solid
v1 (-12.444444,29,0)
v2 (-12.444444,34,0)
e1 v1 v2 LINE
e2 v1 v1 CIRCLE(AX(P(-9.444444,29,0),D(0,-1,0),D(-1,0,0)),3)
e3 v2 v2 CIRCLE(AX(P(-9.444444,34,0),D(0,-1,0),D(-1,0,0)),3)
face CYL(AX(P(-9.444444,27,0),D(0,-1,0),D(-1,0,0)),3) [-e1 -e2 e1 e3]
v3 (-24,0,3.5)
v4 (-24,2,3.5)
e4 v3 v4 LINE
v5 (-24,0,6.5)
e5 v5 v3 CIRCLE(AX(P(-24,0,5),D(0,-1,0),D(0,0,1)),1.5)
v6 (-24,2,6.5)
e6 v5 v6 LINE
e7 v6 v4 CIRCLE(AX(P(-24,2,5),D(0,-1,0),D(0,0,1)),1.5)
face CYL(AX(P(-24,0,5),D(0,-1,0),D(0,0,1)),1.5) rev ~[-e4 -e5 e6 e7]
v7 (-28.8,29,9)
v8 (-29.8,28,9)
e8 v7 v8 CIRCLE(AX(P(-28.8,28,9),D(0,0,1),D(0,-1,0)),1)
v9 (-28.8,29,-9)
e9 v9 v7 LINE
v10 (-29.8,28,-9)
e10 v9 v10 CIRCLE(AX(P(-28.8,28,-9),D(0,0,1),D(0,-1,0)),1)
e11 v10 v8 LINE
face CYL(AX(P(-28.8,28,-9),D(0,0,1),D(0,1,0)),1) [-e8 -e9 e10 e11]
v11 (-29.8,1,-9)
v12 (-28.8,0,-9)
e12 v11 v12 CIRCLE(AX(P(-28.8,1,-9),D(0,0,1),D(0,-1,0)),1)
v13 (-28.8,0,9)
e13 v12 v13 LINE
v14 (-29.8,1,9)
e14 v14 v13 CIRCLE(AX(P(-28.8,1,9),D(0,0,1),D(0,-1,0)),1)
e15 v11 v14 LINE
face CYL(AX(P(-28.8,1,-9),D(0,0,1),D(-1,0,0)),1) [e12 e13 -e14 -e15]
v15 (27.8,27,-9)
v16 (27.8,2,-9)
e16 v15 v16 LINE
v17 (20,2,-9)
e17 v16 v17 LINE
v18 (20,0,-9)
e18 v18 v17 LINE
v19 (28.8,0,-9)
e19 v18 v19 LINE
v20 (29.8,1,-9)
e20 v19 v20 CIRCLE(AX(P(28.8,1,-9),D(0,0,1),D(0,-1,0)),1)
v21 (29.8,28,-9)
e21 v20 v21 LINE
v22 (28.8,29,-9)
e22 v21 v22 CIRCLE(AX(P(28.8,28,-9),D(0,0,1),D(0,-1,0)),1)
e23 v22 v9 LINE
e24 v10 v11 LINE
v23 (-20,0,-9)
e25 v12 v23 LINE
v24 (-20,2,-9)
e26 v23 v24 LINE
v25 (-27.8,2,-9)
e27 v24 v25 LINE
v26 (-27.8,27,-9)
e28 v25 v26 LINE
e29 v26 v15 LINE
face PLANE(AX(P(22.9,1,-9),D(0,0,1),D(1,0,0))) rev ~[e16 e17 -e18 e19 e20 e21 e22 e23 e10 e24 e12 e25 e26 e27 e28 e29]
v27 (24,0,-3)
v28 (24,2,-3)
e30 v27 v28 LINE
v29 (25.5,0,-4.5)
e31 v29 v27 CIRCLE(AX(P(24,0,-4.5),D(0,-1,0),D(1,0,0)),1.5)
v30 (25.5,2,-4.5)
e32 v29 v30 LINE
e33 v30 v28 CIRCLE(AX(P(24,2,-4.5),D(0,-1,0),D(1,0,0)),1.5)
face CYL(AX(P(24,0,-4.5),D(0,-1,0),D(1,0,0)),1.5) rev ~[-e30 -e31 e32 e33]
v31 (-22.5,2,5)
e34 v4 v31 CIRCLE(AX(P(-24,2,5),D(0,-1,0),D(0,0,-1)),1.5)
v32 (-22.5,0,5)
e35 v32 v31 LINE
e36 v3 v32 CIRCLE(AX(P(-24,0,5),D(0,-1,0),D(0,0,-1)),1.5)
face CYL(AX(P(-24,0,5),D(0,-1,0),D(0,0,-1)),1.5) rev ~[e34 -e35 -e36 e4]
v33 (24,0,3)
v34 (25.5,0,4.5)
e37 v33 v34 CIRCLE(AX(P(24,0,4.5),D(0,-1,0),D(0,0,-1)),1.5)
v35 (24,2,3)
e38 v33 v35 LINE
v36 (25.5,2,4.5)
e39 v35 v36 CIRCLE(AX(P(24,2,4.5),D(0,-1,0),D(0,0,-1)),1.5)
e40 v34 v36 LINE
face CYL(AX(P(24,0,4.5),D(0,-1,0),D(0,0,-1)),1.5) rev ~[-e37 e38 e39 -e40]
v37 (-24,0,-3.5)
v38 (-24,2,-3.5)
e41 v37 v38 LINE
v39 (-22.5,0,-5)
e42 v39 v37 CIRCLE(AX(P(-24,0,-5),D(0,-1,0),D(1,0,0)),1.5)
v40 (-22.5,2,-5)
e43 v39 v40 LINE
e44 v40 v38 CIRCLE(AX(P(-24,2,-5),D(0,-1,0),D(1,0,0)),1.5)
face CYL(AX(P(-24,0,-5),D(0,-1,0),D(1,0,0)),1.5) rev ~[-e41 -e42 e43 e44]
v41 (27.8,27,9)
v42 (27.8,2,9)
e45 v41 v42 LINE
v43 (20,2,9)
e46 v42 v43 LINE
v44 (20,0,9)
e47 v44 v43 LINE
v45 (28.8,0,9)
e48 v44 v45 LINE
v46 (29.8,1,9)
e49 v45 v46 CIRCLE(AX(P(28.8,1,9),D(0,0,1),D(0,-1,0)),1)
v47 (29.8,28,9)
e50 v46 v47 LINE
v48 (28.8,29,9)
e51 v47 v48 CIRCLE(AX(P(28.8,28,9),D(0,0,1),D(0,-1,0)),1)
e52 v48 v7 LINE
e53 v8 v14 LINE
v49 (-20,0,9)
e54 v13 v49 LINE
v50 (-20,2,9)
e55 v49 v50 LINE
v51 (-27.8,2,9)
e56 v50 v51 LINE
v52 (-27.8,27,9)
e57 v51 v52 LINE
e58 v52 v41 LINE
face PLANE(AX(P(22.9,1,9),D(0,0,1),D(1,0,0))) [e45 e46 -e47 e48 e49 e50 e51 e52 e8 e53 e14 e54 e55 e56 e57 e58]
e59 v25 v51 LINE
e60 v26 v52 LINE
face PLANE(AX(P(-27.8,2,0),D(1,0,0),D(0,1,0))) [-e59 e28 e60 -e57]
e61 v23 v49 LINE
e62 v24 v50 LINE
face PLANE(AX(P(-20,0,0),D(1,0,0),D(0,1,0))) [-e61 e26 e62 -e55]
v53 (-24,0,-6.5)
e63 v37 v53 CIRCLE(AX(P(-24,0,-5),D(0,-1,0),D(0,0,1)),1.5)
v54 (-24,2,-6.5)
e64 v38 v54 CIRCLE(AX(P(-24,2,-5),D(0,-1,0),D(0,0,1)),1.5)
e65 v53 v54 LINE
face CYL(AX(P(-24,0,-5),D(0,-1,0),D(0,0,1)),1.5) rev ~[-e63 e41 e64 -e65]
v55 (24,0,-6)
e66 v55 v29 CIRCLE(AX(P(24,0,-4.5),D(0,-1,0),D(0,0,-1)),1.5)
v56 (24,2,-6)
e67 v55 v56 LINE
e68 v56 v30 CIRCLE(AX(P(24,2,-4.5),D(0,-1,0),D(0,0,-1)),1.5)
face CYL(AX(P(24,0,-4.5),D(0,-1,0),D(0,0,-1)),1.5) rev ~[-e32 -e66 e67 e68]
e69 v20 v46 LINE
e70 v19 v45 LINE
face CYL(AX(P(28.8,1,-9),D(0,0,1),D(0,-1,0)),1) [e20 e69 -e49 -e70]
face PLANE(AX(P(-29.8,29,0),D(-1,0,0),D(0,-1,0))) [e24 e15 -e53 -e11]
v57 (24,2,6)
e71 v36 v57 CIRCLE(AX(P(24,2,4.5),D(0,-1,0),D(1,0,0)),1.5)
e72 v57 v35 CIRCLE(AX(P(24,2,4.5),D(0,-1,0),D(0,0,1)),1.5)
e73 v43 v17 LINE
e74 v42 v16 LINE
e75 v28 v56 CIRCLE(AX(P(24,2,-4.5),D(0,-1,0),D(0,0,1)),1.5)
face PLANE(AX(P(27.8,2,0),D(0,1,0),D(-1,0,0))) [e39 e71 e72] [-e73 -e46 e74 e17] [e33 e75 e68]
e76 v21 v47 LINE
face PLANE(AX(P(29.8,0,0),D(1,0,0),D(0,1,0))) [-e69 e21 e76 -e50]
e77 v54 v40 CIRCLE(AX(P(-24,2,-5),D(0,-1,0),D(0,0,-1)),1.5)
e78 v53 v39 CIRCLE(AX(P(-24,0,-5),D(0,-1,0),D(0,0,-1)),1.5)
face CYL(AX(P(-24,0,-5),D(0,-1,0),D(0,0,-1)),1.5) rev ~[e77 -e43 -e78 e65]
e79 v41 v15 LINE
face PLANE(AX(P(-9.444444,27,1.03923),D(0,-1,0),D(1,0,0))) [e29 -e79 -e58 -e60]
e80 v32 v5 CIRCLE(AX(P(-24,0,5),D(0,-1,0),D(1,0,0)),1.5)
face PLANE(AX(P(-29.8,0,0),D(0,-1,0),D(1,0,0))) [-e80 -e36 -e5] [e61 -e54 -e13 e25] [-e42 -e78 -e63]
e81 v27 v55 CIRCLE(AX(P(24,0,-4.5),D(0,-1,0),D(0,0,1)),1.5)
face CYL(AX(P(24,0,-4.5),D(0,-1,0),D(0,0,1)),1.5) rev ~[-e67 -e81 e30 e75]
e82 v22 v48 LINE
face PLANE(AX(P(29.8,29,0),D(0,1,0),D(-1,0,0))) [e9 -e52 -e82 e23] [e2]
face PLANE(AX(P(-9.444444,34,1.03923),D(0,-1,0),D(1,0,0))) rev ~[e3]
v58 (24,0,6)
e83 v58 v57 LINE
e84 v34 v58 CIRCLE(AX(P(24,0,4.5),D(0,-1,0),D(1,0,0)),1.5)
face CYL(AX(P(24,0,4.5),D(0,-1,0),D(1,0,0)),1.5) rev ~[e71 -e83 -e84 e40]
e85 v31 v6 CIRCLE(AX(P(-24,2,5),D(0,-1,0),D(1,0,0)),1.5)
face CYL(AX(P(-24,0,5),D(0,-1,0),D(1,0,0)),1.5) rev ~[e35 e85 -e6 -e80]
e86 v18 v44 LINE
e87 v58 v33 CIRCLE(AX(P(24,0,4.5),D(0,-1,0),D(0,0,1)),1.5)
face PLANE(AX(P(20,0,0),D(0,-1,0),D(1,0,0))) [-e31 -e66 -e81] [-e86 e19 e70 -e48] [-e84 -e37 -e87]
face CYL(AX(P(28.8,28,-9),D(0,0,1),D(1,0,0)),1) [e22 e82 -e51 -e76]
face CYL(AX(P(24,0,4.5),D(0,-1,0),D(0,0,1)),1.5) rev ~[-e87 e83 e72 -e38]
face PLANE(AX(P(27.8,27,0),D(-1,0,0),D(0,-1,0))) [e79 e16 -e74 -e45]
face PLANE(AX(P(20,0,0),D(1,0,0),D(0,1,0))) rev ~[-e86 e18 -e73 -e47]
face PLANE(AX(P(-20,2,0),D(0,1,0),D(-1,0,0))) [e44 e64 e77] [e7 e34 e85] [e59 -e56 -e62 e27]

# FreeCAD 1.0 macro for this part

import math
import FreeCAD as App
import Part
import Sketcher
from FreeCAD import Vector


def edges_at(feature, points):
    """Names of the edges that pass closest to the given points."""
    edges = feature.Shape.Edges
    near = lambda p: min(range(len(edges)), key=lambda i: edges[i].distToShape(Part.Vertex(*p))[0])
    return sorted({f"Edge{near(p) + 1}" for p in points})


def add_polygon(sketch, points):
    """Adds a closed chain of lines whose ends are joined by coincident constraints."""
    first, n = sketch.GeometryCount, len(points)
    for a, b in zip(points, points[1:] + points[:1]):
        sketch.addGeometry(Part.LineSegment(App.Vector(*a, 0), App.Vector(*b, 0)), False)
    for i in range(n):
        sketch.addConstraint(Sketcher.Constraint("Coincident", first + i, 2, first + (i + 1) % n, 1))

doc = App.newDocument("Part")
body = doc.addObject("PartDesign::Body", "Body")

# Sketch on XY plane
sketch1 = body.newObject("Sketcher::SketchObject", "Sketch")
sketch1.AttachmentSupport = (doc.getObject("XY_Plane"), [""])
sketch1.MapMode = "FlatFace"
add_polygon(sketch1, [(20, 2), (20, 0), (29.8, 0), (29.8, 29), (-29.8, 29), (-29.8, 0), (-20, 0), (-20, 2), (-27.8, 2), (-27.8, 27), (27.8, 27), (27.8, 2)])  # lines 0-11
sketch1.addConstraint([
    Sketcher.Constraint("Vertical", 0),
    Sketcher.Constraint("Horizontal", 1),
    Sketcher.Constraint("Vertical", 2),
    Sketcher.Constraint("Horizontal", 3),
    Sketcher.Constraint("Vertical", 4),
    Sketcher.Constraint("Horizontal", 5),
    Sketcher.Constraint("Vertical", 6),
    Sketcher.Constraint("Horizontal", 7),
    Sketcher.Constraint("Vertical", 8),
    Sketcher.Constraint("Horizontal", 9),
    Sketcher.Constraint("Vertical", 10),
    Sketcher.Constraint("Horizontal", 11),
    Sketcher.Constraint("Symmetric", 1, 2, 4, 2, -1, 1),
    Sketcher.Constraint("Symmetric", 0, 2, 5, 2, -2),
    Sketcher.Constraint("Symmetric", 7, 2, 10, 2, -2),
    Sketcher.Constraint("DistanceY", 0, 2, 0, 1, 2.0),
    Sketcher.Constraint("DistanceY", 2, 1, 2, 2, 29.0),
    Sketcher.Constraint("DistanceY", 8, 1, 8, 2, 25.0),
    Sketcher.Constraint("DistanceX", 1, 1, 1, 2, 9.8),
    Sketcher.Constraint("DistanceX", 3, 2, 3, 1, 59.6),
    Sketcher.Constraint("DistanceX", 7, 2, 7, 1, 7.8),
])
pad1 = body.newObject("PartDesign::Pad", "Pad")
pad1.Profile = sketch1
pad1.Length = 18
pad1.Midplane = True

# Sketch on XZ plane
sketch2 = body.newObject("Sketcher::SketchObject", "Sketch001")
sketch2.AttachmentSupport = (doc.getObject("XZ_Plane"), [""])
sketch2.MapMode = "FlatFace"
sketch2.addGeometry([
    Part.ArcOfCircle(Part.Circle(Vector(-24, 5, 0), Vector(0, 0, 1), 1.5), math.radians(90), math.radians(270)),  # 0
    Part.ArcOfCircle(Part.Circle(Vector(-24, 5, 0), Vector(0, 0, 1), 1.5), math.radians(-90), math.radians(0)),  # 1
    Part.ArcOfCircle(Part.Circle(Vector(-24, 5, 0), Vector(0, 0, 1), 1.5), math.radians(0), math.radians(90)),  # 2
    Part.ArcOfCircle(Part.Circle(Vector(-24, -5, 0), Vector(0, 0, 1), 1.5), math.radians(90), math.radians(270)),  # 3
    Part.ArcOfCircle(Part.Circle(Vector(-24, -5, 0), Vector(0, 0, 1), 1.5), math.radians(-90), math.radians(0)),  # 4
    Part.ArcOfCircle(Part.Circle(Vector(-24, -5, 0), Vector(0, 0, 1), 1.5), math.radians(0), math.radians(90)),  # 5
    Part.ArcOfCircle(Part.Circle(Vector(24, 4.5, 0), Vector(0, 0, 1), 1.5), math.radians(90), math.radians(270)),  # 6
    Part.ArcOfCircle(Part.Circle(Vector(24, 4.5, 0), Vector(0, 0, 1), 1.5), math.radians(-90), math.radians(0)),  # 7
    Part.ArcOfCircle(Part.Circle(Vector(24, 4.5, 0), Vector(0, 0, 1), 1.5), math.radians(0), math.radians(90)),  # 8
    Part.ArcOfCircle(Part.Circle(Vector(24, -4.5, 0), Vector(0, 0, 1), 1.5), math.radians(-90), math.radians(0)),  # 9
    Part.ArcOfCircle(Part.Circle(Vector(24, -4.5, 0), Vector(0, 0, 1), 1.5), math.radians(0), math.radians(90)),  # 10
    Part.ArcOfCircle(Part.Circle(Vector(24, -4.5, 0), Vector(0, 0, 1), 1.5), math.radians(90), math.radians(270)),  # 11
], False)
sketch2.addConstraint([
    Sketcher.Constraint("Tangent", 0, 2, 1, 1),
    Sketcher.Constraint("Tangent", 1, 2, 2, 1),
    Sketcher.Constraint("Tangent", 2, 2, 0, 1),
    Sketcher.Constraint("Tangent", 3, 2, 4, 1),
    Sketcher.Constraint("Tangent", 4, 2, 5, 1),
    Sketcher.Constraint("Tangent", 5, 2, 3, 1),
    Sketcher.Constraint("Tangent", 6, 2, 7, 1),
    Sketcher.Constraint("Tangent", 7, 2, 8, 1),
    Sketcher.Constraint("Tangent", 8, 2, 6, 1),
    Sketcher.Constraint("Tangent", 9, 2, 10, 1),
    Sketcher.Constraint("Tangent", 10, 2, 11, 1),
    Sketcher.Constraint("Tangent", 11, 2, 9, 1),
    Sketcher.Constraint("Equal", 2, 3),
    Sketcher.Constraint("Equal", 5, 6),
    Sketcher.Constraint("Equal", 8, 9),
    Sketcher.Constraint("Symmetric", 0, 3, 3, 3, -1),
    Sketcher.Constraint("Symmetric", 6, 3, 9, 3, -1),
    Sketcher.Constraint("Horizontal", 2, 3, 1, 2),
    Sketcher.Constraint("Horizontal", 5, 3, 4, 2),
    Sketcher.Constraint("Horizontal", 8, 3, 7, 2),
    Sketcher.Constraint("Horizontal", 11, 3, 9, 2),
    Sketcher.Constraint("Vertical", 5, 3, 0, 2),
    Sketcher.Constraint("Vertical", 0, 2, 2, 2),
    Sketcher.Constraint("Vertical", 2, 2, 3, 2),
    Sketcher.Constraint("Vertical", 3, 2, 5, 2),
    Sketcher.Constraint("Vertical", 11, 3, 6, 2),
    Sketcher.Constraint("Vertical", 6, 2, 8, 2),
    Sketcher.Constraint("Vertical", 8, 2, 10, 2),
    Sketcher.Constraint("Vertical", 10, 2, 11, 2),
    Sketcher.Constraint("Radius", 0, 1.5),
    Sketcher.Constraint("DistanceX", 0, 3, -1, 1, 24.0),
    Sketcher.Constraint("DistanceY", -1, 1, 0, 3, 5.0),
    Sketcher.Constraint("DistanceX", -1, 1, 6, 3, 24.0),
    Sketcher.Constraint("DistanceY", -1, 1, 6, 2, 3.0),
])
pocket1 = body.newObject("PartDesign::Pocket", "Pocket")
pocket1.Profile = sketch2
pocket1.Length = 25
doc.recompute()

fillet = body.newObject("PartDesign::Fillet", "Fillet")
fillet.Base = (pocket1, edges_at(pocket1, [
    (-29.8, 0, 0),
    (29.8, 0, 0),
    (29.8, 29, 0),
    (-29.8, 29, 0),
]))
fillet.Radius = 1

# Sketch on XZ plane
sketch3 = body.newObject("Sketcher::SketchObject", "Sketch002")
sketch3.AttachmentSupport = (doc.getObject("XZ_Plane"), [""])
sketch3.MapMode = "FlatFace"
sketch3.AttachmentOffset = App.Placement(Vector(0, 0, -27), App.Rotation())
sketch3.addGeometry(Part.Circle(Vector(-9.444444, 0, 0), Vector(0, 0, 1), 3), False)
sketch3.addConstraint([
    Sketcher.Constraint("PointOnObject", 0, 3, -1),
    Sketcher.Constraint("Diameter", 0, 6.0),
    Sketcher.Constraint("DistanceX", 0, 3, -1, 1, 9.444444),
])
pad2 = body.newObject("PartDesign::Pad", "Pad001")
pad2.Profile = sketch3
pad2.Length = 7
pad2.Reversed = True

doc.recompute()
